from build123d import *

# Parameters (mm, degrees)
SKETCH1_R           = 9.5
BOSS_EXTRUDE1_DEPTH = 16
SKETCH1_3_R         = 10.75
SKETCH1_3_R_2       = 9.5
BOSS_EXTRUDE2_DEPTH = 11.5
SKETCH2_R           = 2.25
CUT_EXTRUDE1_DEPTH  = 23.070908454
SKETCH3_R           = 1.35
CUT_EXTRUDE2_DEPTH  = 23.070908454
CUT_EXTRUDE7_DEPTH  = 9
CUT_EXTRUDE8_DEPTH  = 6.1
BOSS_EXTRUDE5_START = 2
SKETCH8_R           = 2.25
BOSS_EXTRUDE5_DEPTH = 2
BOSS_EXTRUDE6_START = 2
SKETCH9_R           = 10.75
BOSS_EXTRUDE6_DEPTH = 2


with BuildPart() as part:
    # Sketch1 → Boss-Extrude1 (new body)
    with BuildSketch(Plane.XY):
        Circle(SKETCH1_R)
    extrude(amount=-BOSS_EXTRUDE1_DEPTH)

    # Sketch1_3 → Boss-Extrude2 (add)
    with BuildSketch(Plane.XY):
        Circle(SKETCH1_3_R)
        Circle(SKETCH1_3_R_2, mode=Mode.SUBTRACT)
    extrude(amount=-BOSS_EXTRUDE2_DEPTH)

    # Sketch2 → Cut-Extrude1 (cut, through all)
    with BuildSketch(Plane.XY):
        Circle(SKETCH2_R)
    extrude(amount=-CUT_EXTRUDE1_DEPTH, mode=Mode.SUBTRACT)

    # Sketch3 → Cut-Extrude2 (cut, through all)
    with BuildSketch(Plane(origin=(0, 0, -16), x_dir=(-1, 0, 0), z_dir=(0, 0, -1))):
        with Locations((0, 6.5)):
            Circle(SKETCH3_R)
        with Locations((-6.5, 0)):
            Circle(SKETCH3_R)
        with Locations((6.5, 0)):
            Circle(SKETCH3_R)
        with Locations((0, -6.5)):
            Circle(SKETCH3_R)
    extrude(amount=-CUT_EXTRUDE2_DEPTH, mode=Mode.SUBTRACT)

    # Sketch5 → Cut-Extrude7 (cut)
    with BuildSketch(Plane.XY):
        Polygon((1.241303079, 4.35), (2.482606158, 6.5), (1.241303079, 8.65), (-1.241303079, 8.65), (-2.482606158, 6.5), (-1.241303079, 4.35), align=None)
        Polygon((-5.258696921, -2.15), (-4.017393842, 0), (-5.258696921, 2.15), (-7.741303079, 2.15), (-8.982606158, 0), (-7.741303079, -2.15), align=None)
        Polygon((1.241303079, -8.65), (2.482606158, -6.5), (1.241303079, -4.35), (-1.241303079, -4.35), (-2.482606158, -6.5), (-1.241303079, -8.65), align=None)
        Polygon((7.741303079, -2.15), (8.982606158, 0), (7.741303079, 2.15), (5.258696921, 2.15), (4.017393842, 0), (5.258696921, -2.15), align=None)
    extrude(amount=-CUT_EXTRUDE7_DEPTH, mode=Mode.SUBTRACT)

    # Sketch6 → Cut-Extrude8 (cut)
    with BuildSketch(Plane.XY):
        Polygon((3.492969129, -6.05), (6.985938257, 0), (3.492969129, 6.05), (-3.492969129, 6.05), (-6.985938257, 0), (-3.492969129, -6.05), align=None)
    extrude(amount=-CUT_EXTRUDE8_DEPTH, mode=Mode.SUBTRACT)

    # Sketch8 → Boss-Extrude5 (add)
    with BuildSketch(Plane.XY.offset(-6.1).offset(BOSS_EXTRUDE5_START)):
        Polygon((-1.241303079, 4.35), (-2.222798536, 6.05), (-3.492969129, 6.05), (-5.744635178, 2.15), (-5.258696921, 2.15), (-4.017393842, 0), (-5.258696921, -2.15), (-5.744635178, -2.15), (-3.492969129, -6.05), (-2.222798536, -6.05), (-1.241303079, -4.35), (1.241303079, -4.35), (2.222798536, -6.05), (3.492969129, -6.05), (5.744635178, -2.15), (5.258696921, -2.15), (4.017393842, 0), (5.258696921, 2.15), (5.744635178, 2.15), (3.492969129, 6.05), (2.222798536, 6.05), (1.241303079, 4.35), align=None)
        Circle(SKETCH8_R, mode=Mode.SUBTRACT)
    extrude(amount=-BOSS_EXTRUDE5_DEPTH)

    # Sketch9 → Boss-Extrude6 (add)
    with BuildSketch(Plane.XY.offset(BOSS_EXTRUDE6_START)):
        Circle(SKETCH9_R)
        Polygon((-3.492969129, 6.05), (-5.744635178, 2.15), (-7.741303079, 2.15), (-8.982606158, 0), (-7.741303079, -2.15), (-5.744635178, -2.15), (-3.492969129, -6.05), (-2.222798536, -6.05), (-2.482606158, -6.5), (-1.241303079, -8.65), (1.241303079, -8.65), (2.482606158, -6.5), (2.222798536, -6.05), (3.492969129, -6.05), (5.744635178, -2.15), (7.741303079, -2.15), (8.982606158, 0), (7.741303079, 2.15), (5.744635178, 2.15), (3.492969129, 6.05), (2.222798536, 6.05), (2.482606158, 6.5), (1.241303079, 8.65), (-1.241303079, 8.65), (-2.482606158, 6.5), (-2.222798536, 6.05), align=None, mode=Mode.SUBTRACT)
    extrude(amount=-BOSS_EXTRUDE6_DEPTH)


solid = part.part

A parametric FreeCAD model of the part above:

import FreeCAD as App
import Part
import Sketcher
from FreeCAD import Vector
Q = App.Units.Quantity


def add_polygon(sketch, points):
    """Adds a closed chain of lines whose ends are joined by coincident constraints."""
    first, n = sketch.GeometryCount, len(points)
    for a, b in zip(points, points[1:] + points[:1]):
        sketch.addGeometry(Part.LineSegment(App.Vector(*a, 0), App.Vector(*b, 0)), False)
    for i in range(n):
        sketch.addConstraint(Sketcher.Constraint("Coincident", first + i, 2, first + (i + 1) % n, 1))

doc = App.newDocument("Part")
body = doc.addObject("PartDesign::Body", "Body")

# Sketch on XY plane
sketch1 = body.newObject("Sketcher::SketchObject", "Sketch")
sketch1.AttachmentSupport = (doc.getObject("XY_Plane"), [""])
sketch1.MapMode = "FlatFace"
sketch1.addGeometry(Part.Circle(Vector(0, 0, 0), Vector(0, 0, 1), 10), False)
sketch1.addConstraint(Sketcher.Constraint("Coincident", 0, 3, -1, 1))
sketch1.addConstraint(Sketcher.Constraint("Diameter", 0, 19.0))
pad1 = body.newObject("PartDesign::Pad", "Pad")
pad1.Profile = sketch1
pad1.Length = 16
pad1.Reversed = True

# Sketch on XY plane
sketch2 = body.newObject("Sketcher::SketchObject", "Sketch001")
sketch2.AttachmentSupport = (doc.getObject("XY_Plane"), [""])
sketch2.MapMode = "FlatFace"
sketch2.addGeometry(Part.Circle(Vector(0, 0, 0), Vector(0, 0, 1), 11), False)
sketch2.addGeometry(Part.Circle(Vector(0, 0, 0), Vector(0, 0, 1), 10), False)
sketch2.addConstraint(Sketcher.Constraint("Coincident", 0, 3, -1, 1))
sketch2.addConstraint(Sketcher.Constraint("Coincident", 1, 3, -1, 1))
sketch2.addConstraint(Sketcher.Constraint("Diameter", 1, 19.0))
sketch2.addConstraint(Sketcher.Constraint("Diameter", 0, 21.5))
pad2 = body.newObject("PartDesign::Pad", "Pad001")
pad2.Profile = sketch2
pad2.Length = 11.5
pad2.Reversed = True

# Sketch on XY plane
sketch3 = body.newObject("Sketcher::SketchObject", "Sketch002")
sketch3.AttachmentSupport = (doc.getObject("XY_Plane"), [""])
sketch3.MapMode = "FlatFace"
sketch3.addGeometry(Part.Circle(Vector(0, 0, 0), Vector(0, 0, 1), 2.2), False)
sketch3.addConstraint(Sketcher.Constraint("Coincident", 0, 3, -1, 1))
sketch3.addConstraint(Sketcher.Constraint("Diameter", 0, 4.5))
pocket1 = body.newObject("PartDesign::Pocket", "Pocket")
pocket1.Profile = sketch3
pocket1.Type = "ThroughAll"

# Sketch on XY plane
sketch4 = body.newObject("Sketcher::SketchObject", "Sketch003")
sketch4.AttachmentSupport = (doc.getObject("XY_Plane"), [""])
sketch4.MapMode = "FlatFace"
sketch4.AttachmentOffset = App.Placement(Vector(0, 0, -16), App.Rotation())
sketch4.addGeometry(Part.Circle(Vector(0, 6.5, 0), Vector(0, 0, 1), 1.4), False)
sketch4.addGeometry(Part.Circle(Vector(6.5, 0, 0), Vector(0, 0, 1), 1.4), False)
sketch4.addGeometry(Part.Circle(Vector(-6.5, 0, 0), Vector(0, 0, 1), 1.4), False)
sketch4.addGeometry(Part.Circle(Vector(0, -6.5, 0), Vector(0, 0, 1), 1.4), False)
sketch4.addConstraint(Sketcher.Constraint("Equal", 0, 1))
sketch4.addConstraint(Sketcher.Constraint("Equal", 1, 2))
sketch4.addConstraint(Sketcher.Constraint("Equal", 2, 3))
sketch4.addConstraint(Sketcher.Constraint("Symmetric", 1, 3, 2, 3, -1, 1))
sketch4.addConstraint(Sketcher.Constraint("Symmetric", 0, 3, 3, 3, -1, 1))
sketch4.addConstraint(Sketcher.Constraint("PointOnObject", 0, 3, -2))
sketch4.addConstraint(Sketcher.Constraint("PointOnObject", 1, 3, -1))
sketch4.addConstraint(Sketcher.Constraint("Diameter", 0, 2.7))
sketch4.addConstraint(Sketcher.Constraint("DistanceX", 2, 3, 1, 3, 13.0))
sketch4.addConstraint(Sketcher.Constraint("DistanceY", 3, 3, 0, 3, 13.0))
pocket2 = body.newObject("PartDesign::Pocket", "Pocket001")
pocket2.Profile = sketch4
pocket2.Type = "ThroughAll"
pocket2.Reversed = True

# Sketch on XY plane
sketch5 = body.newObject("Sketcher::SketchObject", "Sketch004")
sketch5.AttachmentSupport = (doc.getObject("XY_Plane"), [""])
sketch5.MapMode = "FlatFace"
add_polygon(sketch5, [(1.2, 4.3), (2.5, 6.5), (1.2, 8.7), (-1.2, 8.7), (-2.5, 6.5), (-1.2, 4.3)])  # lines 0-5
add_polygon(sketch5, [(-5.3, -2.1), (-4, 0), (-5.3, 2.1), (-7.7, 2.1), (-9, 0), (-7.7, -2.1)])  # lines 6-11
add_polygon(sketch5, [(1.2, -8.7), (2.5, -6.5), (1.2, -4.3), (-1.2, -4.3), (-2.5, -6.5), (-1.2, -8.7)])  # lines 12-17
add_polygon(sketch5, [(7.7, -2.1), (9, 0), (7.7, 2.1), (5.3, 2.1), (4, 0), (5.3, -2.1)])  # lines 18-23
sketch5.addConstraint(Sketcher.Constraint("Horizontal", 2))
sketch5.addConstraint(Sketcher.Constraint("Horizontal", 5))
sketch5.addConstraint(Sketcher.Constraint("Horizontal", 8))
sketch5.addConstraint(Sketcher.Constraint("Horizontal", 11))
sketch5.addConstraint(Sketcher.Constraint("Horizontal", 14))
sketch5.addConstraint(Sketcher.Constraint("Horizontal", 17))
sketch5.addConstraint(Sketcher.Constraint("Horizontal", 20))
sketch5.addConstraint(Sketcher.Constraint("Horizontal", 23))
sketch5.addConstraint(Sketcher.Constraint("Symmetric", 3, 2, 12, 2, -1, 1))
sketch5.addConstraint(Sketcher.Constraint("Symmetric", 4, 2, 13, 2, -1, 1))
sketch5.addConstraint(Sketcher.Constraint("Symmetric", 0, 2, 15, 2, -1, 1))
sketch5.addConstraint(Sketcher.Constraint("Symmetric", 1, 2, 16, 2, -1, 1))
sketch5.addConstraint(Sketcher.Constraint("Symmetric", 9, 2, 18, 2, -1, 1))
sketch5.addConstraint(Sketcher.Constraint("Symmetric", 10, 2, 19, 2, -1, 1))
sketch5.addConstraint(Sketcher.Constraint("Symmetric", 6, 2, 21, 2, -1, 1))
sketch5.addConstraint(Sketcher.Constraint("Symmetric", 7, 2, 22, 2, -1, 1))
sketch5.addConstraint(Sketcher.Constraint("Symmetric", 0, 2, 3, 2, -2))
sketch5.addConstraint(Sketcher.Constraint("Symmetric", 8, 2, 19, 2, -2))
sketch5.addConstraint(Sketcher.Constraint("PointOnObject", 6, 2, -1))
sketch5.addConstraint(Sketcher.Constraint("PointOnObject", 9, 2, -1))
sketch5.addConstraint(Sketcher.Constraint("Parallel", 0, 3))
sketch5.addConstraint(Sketcher.Constraint("Parallel", 1, 4))
sketch5.addConstraint(Sketcher.Constraint("Parallel", 3, 6))
sketch5.addConstraint(Sketcher.Constraint("Parallel", 4, 7))
sketch5.addConstraint(Sketcher.Constraint("Parallel", 6, 9))
sketch5.addConstraint(Sketcher.Constraint("Parallel", 7, 10))
sketch5.addConstraint(Sketcher.Constraint("Parallel", 9, 12))
sketch5.addConstraint(Sketcher.Constraint("Parallel", 12, 15))
sketch5.addConstraint(Sketcher.Constraint("Parallel", 15, 18))
sketch5.addConstraint(Sketcher.Constraint("Parallel", 18, 21))
sketch5.addConstraint(Sketcher.Constraint("Vertical", 2, 2, 4, 2))
sketch5.addConstraint(Sketcher.Constraint("Equal", 5, 8))
sketch5.addConstraint(Sketcher.Constraint("Equal", 4, 6))
sketch5.addConstraint(Sketcher.Constraint("Angle", 0, Q("60 deg")))
sketch5.addConstraint(Sketcher.Constraint("DistanceY", -1, 1, 0, 2, 6.5))
sketch5.addConstraint(Sketcher.Constraint("DistanceY", 4, 2, 2, 2, 4.3))
sketch5.addConstraint(Sketcher.Constraint("DistanceX", 6, 2, 0, 2, 6.5))
sketch5.addConstraint(Sketcher.Constraint("DistanceX", 2, 2, 2, 1, 2.482606))
pocket3 = body.newObject("PartDesign::Pocket", "Pocket002")
pocket3.Profile = sketch5
pocket3.Length = 9

# Sketch on XY plane
sketch6 = body.newObject("Sketcher::SketchObject", "Sketch005")
sketch6.AttachmentSupport = (doc.getObject("XY_Plane"), [""])
sketch6.MapMode = "FlatFace"
add_polygon(sketch6, [(3, -6), (7, 0), (3, 6), (-3, 6), (-7, 0), (-3, -6)])  # lines 0-5
sketch6.addConstraint(Sketcher.Constraint("Horizontal", 2))
sketch6.addConstraint(Sketcher.Constraint("Horizontal", 5))
sketch6.addConstraint(Sketcher.Constraint("Symmetric", 0, 2, 3, 2, -1, 1))
sketch6.addConstraint(Sketcher.Constraint("Symmetric", 1, 2, 4, 2, -1, 1))
sketch6.addConstraint(Sketcher.Constraint("PointOnObject", 0, 2, -1))
sketch6.addConstraint(Sketcher.Constraint("Parallel", 0, 3))
sketch6.addConstraint(Sketcher.Constraint("Vertical", 2, 2, 4, 2))
sketch6.addConstraint(Sketcher.Constraint("Angle", 0, Q("60 deg")))
sketch6.addConstraint(Sketcher.Constraint("DistanceY", 4, 2, 2, 2, 12.1))
sketch6.addConstraint(Sketcher.Constraint("DistanceX", 2, 2, 2, 1, 6.985938))
pocket4 = body.newObject("PartDesign::Pocket", "Pocket003")
pocket4.Profile = sketch6
pocket4.Length = 6.1

# Sketch on XY plane
sketch7 = body.newObject("Sketcher::SketchObject", "Sketch006")
sketch7.AttachmentSupport = (doc.getObject("XY_Plane"), [""])
sketch7.MapMode = "FlatFace"
sketch7.AttachmentOffset = App.Placement(Vector(0, 0, -4.1), App.Rotation())
add_polygon(sketch7, [(-1.24, 4.35), (-2.22, 6.05), (-3.49, 6.05), (-5.74, 2.15), (-5.26, 2.15), (-4.02, 0), (-5.26, -2.15), (-5.74, -2.15), (-3.49, -6.05), (-2.22, -6.05), (-1.24, -4.35), (1.24, -4.35), (2.22, -6.05), (3.49, -6.05), (5.74, -2.15), (5.26, -2.15), (4.02, 0), (5.26, 2.15), (5.74, 2.15), (3.49, 6.05), (2.22, 6.05), (1.24, 4.35)])  # lines 0-21
sketch7.addGeometry(Part.Circle(Vector(0, 0, 0), Vector(0, 0, 1), 2.25), False)  # 22
sketch7.addConstraint(Sketcher.Constraint("Horizontal", 1))
sketch7.addConstraint(Sketcher.Constraint("Horizontal", 3))
sketch7.addConstraint(Sketcher.Constraint("Horizontal", 6))
sketch7.addConstraint(Sketcher.Constraint("Horizontal", 8))
sketch7.addConstraint(Sketcher.Constraint("Horizontal", 10))
sketch7.addConstraint(Sketcher.Constraint("Horizontal", 12))
sketch7.addConstraint(Sketcher.Constraint("Horizontal", 14))
sketch7.addConstraint(Sketcher.Constraint("Horizontal", 17))
sketch7.addConstraint(Sketcher.Constraint("Horizontal", 19))
sketch7.addConstraint(Sketcher.Constraint("Horizontal", 21))
sketch7.addConstraint(Sketcher.Constraint("Coincident", 22, 3, -1, 1))
sketch7.addConstraint(Sketcher.Constraint("Symmetric", 0, 2, 11, 2, -1, 1))
sketch7.addConstraint(Sketcher.Constraint("Symmetric", 2, 2, 13, 2, -1, 1))
sketch7.addConstraint(Sketcher.Constraint("Symmetric", 4, 2, 15, 2, -1, 1))
sketch7.addConstraint(Sketcher.Constraint("Symmetric", 5, 2, 16, 2, -1, 1))
sketch7.addConstraint(Sketcher.Constraint("Symmetric", 7, 2, 18, 2, -1, 1))
sketch7.addConstraint(Sketcher.Constraint("Symmetric", 9, 2, 20, 2, -1, 1))
sketch7.addConstraint(Sketcher.Constraint("Symmetric", 8, 2, 11, 2, -2))
sketch7.addConstraint(Sketcher.Constraint("Symmetric", 6, 2, 13, 2, -2))
sketch7.addConstraint(Sketcher.Constraint("PointOnObject", 4, 2, -1))
sketch7.addConstraint(Sketcher.Constraint("Parallel", 0, 4))
sketch7.addConstraint(Sketcher.Constraint("Parallel", 2, 5))
sketch7.addConstraint(Sketcher.Constraint("Parallel", 4, 7))
sketch7.addConstraint(Sketcher.Constraint("Parallel", 5, 9))
sketch7.addConstraint(Sketcher.Constraint("Parallel", 7, 11))
sketch7.addConstraint(Sketcher.Constraint("Parallel", 9, 13))
sketch7.addConstraint(Sketcher.Constraint("Parallel", 11, 15))
sketch7.addConstraint(Sketcher.Constraint("Parallel", 15, 18))
sketch7.addConstraint(Sketcher.Constraint("Parallel", 16, 20))
sketch7.addConstraint(Sketcher.Constraint("Vertical", 3, 2, 5, 2))
sketch7.addConstraint(Sketcher.Constraint("Diameter", 22, 4.5))
sketch7.addConstraint(Sketcher.Constraint("Angle", 0, Q("120 deg")))
sketch7.addConstraint(Sketcher.Constraint("DistanceY", 2, 2, 1, 2, 3.9))
sketch7.addConstraint(Sketcher.Constraint("DistanceY", 5, 2, 3, 2, 4.3))
sketch7.addConstraint(Sketcher.Constraint("DistanceY", 8, 2, 9, 2, 1.7))
sketch7.addConstraint(Sketcher.Constraint("DistanceX", 1, 2, 1, 1, 1.270171))
sketch7.addConstraint(Sketcher.Constraint("DistanceX", 3, 1, 3, 2, 0.485938))
sketch7.addConstraint(Sketcher.Constraint("DistanceX", 0, 2, -1, 1, 2.222799))
pad3 = body.newObject("PartDesign::Pad", "Pad002")
pad3.Profile = sketch7
pad3.Length = 2
pad3.Reversed = True

# Sketch on XY plane
sketch8 = body.newObject("Sketcher::SketchObject", "Sketch007")
sketch8.AttachmentSupport = (doc.getObject("XY_Plane"), [""])
sketch8.MapMode = "FlatFace"
sketch8.AttachmentOffset = App.Placement(Vector(0, 0, 2), App.Rotation())
sketch8.addGeometry(Part.Circle(Vector(0, 0, 0), Vector(0, 0, 1), 10.8), False)  # 0
add_polygon(sketch8, [(-5.7, 2.1), (-3.5, 6), (-2.2, 6), (-2.5, 6.5), (-1.2, 8.7), (1.2, 8.7), (2.5, 6.5), (2.2, 6), (3.5, 6), (5.7, 2.1), (7.7, 2.1), (9, 0), (7.7, -2.1), (5.7, -2.1), (3.5, -6), (2.2, -6), (2.5, -6.5), (1.2, -8.7), (-1.2, -8.7), (-2.5, -6.5), (-2.2, -6), (-3.5, -6), (-5.7, -2.1), (-7.7, -2.1), (-9, 0), (-7.7, 2.1)])  # lines 1-26
sketch8.addConstraint(Sketcher.Constraint("Horizontal", 2))
sketch8.addConstraint(Sketcher.Constraint("Horizontal", 5))
sketch8.addConstraint(Sketcher.Constraint("Horizontal", 8))
sketch8.addConstraint(Sketcher.Constraint("Horizontal", 10))
sketch8.addConstraint(Sketcher.Constraint("Horizontal", 13))
sketch8.addConstraint(Sketcher.Constraint("Horizontal", 15))
sketch8.addConstraint(Sketcher.Constraint("Horizontal", 18))
sketch8.addConstraint(Sketcher.Constraint("Horizontal", 21))
sketch8.addConstraint(Sketcher.Constraint("Horizontal", 23))
sketch8.addConstraint(Sketcher.Constraint("Horizontal", 26))
sketch8.addConstraint(Sketcher.Constraint("Coincident", 0, 3, -1, 1))
sketch8.addConstraint(Sketcher.Constraint("Symmetric", 1, 2, 14, 2, -1, 1))
sketch8.addConstraint(Sketcher.Constraint("Symmetric", 3, 2, 16, 2, -1, 1))
sketch8.addConstraint(Sketcher.Constraint("Symmetric", 4, 2, 17, 2, -1, 1))
sketch8.addConstraint(Sketcher.Constraint("Symmetric", 6, 2, 19, 2, -1, 1))
sketch8.addConstraint(Sketcher.Constraint("Symmetric", 7, 2, 20, 2, -1, 1))
sketch8.addConstraint(Sketcher.Constraint("Symmetric", 9, 2, 22, 2, -1, 1))
sketch8.addConstraint(Sketcher.Constraint("Symmetric", 11, 2, 24, 2, -1, 1))
sketch8.addConstraint(Sketcher.Constraint("Symmetric", 12, 2, 25, 2, -1, 1))
sketch8.addConstraint(Sketcher.Constraint("Symmetric", 3, 2, 6, 2, -2))
sketch8.addConstraint(Sketcher.Constraint("Symmetric", 2, 2, 7, 2, -2))
sketch8.addConstraint(Sketcher.Constraint("Symmetric", 13, 2, 22, 2, -2))
sketch8.addConstraint(Sketcher.Constraint("PointOnObject", 11, 2, -1))
sketch8.addConstraint(Sketcher.Constraint("Parallel", 1, 4))
sketch8.addConstraint(Sketcher.Constraint("Parallel", 3, 6))
sketch8.addConstraint(Sketcher.Constraint("Parallel", 4, 7))
sketch8.addConstraint(Sketcher.Constraint("Parallel", 6, 9))
sketch8.addConstraint(Sketcher.Constraint("Parallel", 9, 11))
sketch8.addConstraint(Sketcher.Constraint("Parallel", 7, 12))
sketch8.addConstraint(Sketcher.Constraint("Parallel", 12, 14))
sketch8.addConstraint(Sketcher.Constraint("Parallel", 11, 16))
sketch8.addConstraint(Sketcher.Constraint("Parallel", 16, 19))
sketch8.addConstraint(Sketcher.Constraint("Parallel", 19, 22))
sketch8.addConstraint(Sketcher.Constraint("Parallel", 22, 24))
sketch8.addConstraint(Sketcher.Constraint("Equal", 6, 11))
sketch8.addConstraint(Sketcher.Constraint("Diameter", 0, 21.5))
sketch8.addConstraint(Sketcher.Constraint("Angle", 1, Q("60 deg")))
sketch8.addConstraint(Sketcher.Constraint("DistanceY", -1, 1, 3, 2, 6.5))
sketch8.addConstraint(Sketcher.Constraint("DistanceY", 2, 2, 4, 2, 2.6))
sketch8.addConstraint(Sketcher.Constraint("DistanceY", 12, 2, 10, 2, 4.3))
sketch8.addConstraint(Sketcher.Constraint("DistanceX", 2, 1, 2, 2, 1.270171))
sketch8.addConstraint(Sketcher.Constraint("DistanceX", 2, 2, -1, 1, 2.222799))
sketch8.addConstraint(Sketcher.Constraint("DistanceX", 10, 1, 10, 2, 1.996668))
pad4 = body.newObject("PartDesign::Pad", "Pad003")
pad4.Profile = sketch8
pad4.Length = 2
pad4.Reversed = True

doc.recompute()
